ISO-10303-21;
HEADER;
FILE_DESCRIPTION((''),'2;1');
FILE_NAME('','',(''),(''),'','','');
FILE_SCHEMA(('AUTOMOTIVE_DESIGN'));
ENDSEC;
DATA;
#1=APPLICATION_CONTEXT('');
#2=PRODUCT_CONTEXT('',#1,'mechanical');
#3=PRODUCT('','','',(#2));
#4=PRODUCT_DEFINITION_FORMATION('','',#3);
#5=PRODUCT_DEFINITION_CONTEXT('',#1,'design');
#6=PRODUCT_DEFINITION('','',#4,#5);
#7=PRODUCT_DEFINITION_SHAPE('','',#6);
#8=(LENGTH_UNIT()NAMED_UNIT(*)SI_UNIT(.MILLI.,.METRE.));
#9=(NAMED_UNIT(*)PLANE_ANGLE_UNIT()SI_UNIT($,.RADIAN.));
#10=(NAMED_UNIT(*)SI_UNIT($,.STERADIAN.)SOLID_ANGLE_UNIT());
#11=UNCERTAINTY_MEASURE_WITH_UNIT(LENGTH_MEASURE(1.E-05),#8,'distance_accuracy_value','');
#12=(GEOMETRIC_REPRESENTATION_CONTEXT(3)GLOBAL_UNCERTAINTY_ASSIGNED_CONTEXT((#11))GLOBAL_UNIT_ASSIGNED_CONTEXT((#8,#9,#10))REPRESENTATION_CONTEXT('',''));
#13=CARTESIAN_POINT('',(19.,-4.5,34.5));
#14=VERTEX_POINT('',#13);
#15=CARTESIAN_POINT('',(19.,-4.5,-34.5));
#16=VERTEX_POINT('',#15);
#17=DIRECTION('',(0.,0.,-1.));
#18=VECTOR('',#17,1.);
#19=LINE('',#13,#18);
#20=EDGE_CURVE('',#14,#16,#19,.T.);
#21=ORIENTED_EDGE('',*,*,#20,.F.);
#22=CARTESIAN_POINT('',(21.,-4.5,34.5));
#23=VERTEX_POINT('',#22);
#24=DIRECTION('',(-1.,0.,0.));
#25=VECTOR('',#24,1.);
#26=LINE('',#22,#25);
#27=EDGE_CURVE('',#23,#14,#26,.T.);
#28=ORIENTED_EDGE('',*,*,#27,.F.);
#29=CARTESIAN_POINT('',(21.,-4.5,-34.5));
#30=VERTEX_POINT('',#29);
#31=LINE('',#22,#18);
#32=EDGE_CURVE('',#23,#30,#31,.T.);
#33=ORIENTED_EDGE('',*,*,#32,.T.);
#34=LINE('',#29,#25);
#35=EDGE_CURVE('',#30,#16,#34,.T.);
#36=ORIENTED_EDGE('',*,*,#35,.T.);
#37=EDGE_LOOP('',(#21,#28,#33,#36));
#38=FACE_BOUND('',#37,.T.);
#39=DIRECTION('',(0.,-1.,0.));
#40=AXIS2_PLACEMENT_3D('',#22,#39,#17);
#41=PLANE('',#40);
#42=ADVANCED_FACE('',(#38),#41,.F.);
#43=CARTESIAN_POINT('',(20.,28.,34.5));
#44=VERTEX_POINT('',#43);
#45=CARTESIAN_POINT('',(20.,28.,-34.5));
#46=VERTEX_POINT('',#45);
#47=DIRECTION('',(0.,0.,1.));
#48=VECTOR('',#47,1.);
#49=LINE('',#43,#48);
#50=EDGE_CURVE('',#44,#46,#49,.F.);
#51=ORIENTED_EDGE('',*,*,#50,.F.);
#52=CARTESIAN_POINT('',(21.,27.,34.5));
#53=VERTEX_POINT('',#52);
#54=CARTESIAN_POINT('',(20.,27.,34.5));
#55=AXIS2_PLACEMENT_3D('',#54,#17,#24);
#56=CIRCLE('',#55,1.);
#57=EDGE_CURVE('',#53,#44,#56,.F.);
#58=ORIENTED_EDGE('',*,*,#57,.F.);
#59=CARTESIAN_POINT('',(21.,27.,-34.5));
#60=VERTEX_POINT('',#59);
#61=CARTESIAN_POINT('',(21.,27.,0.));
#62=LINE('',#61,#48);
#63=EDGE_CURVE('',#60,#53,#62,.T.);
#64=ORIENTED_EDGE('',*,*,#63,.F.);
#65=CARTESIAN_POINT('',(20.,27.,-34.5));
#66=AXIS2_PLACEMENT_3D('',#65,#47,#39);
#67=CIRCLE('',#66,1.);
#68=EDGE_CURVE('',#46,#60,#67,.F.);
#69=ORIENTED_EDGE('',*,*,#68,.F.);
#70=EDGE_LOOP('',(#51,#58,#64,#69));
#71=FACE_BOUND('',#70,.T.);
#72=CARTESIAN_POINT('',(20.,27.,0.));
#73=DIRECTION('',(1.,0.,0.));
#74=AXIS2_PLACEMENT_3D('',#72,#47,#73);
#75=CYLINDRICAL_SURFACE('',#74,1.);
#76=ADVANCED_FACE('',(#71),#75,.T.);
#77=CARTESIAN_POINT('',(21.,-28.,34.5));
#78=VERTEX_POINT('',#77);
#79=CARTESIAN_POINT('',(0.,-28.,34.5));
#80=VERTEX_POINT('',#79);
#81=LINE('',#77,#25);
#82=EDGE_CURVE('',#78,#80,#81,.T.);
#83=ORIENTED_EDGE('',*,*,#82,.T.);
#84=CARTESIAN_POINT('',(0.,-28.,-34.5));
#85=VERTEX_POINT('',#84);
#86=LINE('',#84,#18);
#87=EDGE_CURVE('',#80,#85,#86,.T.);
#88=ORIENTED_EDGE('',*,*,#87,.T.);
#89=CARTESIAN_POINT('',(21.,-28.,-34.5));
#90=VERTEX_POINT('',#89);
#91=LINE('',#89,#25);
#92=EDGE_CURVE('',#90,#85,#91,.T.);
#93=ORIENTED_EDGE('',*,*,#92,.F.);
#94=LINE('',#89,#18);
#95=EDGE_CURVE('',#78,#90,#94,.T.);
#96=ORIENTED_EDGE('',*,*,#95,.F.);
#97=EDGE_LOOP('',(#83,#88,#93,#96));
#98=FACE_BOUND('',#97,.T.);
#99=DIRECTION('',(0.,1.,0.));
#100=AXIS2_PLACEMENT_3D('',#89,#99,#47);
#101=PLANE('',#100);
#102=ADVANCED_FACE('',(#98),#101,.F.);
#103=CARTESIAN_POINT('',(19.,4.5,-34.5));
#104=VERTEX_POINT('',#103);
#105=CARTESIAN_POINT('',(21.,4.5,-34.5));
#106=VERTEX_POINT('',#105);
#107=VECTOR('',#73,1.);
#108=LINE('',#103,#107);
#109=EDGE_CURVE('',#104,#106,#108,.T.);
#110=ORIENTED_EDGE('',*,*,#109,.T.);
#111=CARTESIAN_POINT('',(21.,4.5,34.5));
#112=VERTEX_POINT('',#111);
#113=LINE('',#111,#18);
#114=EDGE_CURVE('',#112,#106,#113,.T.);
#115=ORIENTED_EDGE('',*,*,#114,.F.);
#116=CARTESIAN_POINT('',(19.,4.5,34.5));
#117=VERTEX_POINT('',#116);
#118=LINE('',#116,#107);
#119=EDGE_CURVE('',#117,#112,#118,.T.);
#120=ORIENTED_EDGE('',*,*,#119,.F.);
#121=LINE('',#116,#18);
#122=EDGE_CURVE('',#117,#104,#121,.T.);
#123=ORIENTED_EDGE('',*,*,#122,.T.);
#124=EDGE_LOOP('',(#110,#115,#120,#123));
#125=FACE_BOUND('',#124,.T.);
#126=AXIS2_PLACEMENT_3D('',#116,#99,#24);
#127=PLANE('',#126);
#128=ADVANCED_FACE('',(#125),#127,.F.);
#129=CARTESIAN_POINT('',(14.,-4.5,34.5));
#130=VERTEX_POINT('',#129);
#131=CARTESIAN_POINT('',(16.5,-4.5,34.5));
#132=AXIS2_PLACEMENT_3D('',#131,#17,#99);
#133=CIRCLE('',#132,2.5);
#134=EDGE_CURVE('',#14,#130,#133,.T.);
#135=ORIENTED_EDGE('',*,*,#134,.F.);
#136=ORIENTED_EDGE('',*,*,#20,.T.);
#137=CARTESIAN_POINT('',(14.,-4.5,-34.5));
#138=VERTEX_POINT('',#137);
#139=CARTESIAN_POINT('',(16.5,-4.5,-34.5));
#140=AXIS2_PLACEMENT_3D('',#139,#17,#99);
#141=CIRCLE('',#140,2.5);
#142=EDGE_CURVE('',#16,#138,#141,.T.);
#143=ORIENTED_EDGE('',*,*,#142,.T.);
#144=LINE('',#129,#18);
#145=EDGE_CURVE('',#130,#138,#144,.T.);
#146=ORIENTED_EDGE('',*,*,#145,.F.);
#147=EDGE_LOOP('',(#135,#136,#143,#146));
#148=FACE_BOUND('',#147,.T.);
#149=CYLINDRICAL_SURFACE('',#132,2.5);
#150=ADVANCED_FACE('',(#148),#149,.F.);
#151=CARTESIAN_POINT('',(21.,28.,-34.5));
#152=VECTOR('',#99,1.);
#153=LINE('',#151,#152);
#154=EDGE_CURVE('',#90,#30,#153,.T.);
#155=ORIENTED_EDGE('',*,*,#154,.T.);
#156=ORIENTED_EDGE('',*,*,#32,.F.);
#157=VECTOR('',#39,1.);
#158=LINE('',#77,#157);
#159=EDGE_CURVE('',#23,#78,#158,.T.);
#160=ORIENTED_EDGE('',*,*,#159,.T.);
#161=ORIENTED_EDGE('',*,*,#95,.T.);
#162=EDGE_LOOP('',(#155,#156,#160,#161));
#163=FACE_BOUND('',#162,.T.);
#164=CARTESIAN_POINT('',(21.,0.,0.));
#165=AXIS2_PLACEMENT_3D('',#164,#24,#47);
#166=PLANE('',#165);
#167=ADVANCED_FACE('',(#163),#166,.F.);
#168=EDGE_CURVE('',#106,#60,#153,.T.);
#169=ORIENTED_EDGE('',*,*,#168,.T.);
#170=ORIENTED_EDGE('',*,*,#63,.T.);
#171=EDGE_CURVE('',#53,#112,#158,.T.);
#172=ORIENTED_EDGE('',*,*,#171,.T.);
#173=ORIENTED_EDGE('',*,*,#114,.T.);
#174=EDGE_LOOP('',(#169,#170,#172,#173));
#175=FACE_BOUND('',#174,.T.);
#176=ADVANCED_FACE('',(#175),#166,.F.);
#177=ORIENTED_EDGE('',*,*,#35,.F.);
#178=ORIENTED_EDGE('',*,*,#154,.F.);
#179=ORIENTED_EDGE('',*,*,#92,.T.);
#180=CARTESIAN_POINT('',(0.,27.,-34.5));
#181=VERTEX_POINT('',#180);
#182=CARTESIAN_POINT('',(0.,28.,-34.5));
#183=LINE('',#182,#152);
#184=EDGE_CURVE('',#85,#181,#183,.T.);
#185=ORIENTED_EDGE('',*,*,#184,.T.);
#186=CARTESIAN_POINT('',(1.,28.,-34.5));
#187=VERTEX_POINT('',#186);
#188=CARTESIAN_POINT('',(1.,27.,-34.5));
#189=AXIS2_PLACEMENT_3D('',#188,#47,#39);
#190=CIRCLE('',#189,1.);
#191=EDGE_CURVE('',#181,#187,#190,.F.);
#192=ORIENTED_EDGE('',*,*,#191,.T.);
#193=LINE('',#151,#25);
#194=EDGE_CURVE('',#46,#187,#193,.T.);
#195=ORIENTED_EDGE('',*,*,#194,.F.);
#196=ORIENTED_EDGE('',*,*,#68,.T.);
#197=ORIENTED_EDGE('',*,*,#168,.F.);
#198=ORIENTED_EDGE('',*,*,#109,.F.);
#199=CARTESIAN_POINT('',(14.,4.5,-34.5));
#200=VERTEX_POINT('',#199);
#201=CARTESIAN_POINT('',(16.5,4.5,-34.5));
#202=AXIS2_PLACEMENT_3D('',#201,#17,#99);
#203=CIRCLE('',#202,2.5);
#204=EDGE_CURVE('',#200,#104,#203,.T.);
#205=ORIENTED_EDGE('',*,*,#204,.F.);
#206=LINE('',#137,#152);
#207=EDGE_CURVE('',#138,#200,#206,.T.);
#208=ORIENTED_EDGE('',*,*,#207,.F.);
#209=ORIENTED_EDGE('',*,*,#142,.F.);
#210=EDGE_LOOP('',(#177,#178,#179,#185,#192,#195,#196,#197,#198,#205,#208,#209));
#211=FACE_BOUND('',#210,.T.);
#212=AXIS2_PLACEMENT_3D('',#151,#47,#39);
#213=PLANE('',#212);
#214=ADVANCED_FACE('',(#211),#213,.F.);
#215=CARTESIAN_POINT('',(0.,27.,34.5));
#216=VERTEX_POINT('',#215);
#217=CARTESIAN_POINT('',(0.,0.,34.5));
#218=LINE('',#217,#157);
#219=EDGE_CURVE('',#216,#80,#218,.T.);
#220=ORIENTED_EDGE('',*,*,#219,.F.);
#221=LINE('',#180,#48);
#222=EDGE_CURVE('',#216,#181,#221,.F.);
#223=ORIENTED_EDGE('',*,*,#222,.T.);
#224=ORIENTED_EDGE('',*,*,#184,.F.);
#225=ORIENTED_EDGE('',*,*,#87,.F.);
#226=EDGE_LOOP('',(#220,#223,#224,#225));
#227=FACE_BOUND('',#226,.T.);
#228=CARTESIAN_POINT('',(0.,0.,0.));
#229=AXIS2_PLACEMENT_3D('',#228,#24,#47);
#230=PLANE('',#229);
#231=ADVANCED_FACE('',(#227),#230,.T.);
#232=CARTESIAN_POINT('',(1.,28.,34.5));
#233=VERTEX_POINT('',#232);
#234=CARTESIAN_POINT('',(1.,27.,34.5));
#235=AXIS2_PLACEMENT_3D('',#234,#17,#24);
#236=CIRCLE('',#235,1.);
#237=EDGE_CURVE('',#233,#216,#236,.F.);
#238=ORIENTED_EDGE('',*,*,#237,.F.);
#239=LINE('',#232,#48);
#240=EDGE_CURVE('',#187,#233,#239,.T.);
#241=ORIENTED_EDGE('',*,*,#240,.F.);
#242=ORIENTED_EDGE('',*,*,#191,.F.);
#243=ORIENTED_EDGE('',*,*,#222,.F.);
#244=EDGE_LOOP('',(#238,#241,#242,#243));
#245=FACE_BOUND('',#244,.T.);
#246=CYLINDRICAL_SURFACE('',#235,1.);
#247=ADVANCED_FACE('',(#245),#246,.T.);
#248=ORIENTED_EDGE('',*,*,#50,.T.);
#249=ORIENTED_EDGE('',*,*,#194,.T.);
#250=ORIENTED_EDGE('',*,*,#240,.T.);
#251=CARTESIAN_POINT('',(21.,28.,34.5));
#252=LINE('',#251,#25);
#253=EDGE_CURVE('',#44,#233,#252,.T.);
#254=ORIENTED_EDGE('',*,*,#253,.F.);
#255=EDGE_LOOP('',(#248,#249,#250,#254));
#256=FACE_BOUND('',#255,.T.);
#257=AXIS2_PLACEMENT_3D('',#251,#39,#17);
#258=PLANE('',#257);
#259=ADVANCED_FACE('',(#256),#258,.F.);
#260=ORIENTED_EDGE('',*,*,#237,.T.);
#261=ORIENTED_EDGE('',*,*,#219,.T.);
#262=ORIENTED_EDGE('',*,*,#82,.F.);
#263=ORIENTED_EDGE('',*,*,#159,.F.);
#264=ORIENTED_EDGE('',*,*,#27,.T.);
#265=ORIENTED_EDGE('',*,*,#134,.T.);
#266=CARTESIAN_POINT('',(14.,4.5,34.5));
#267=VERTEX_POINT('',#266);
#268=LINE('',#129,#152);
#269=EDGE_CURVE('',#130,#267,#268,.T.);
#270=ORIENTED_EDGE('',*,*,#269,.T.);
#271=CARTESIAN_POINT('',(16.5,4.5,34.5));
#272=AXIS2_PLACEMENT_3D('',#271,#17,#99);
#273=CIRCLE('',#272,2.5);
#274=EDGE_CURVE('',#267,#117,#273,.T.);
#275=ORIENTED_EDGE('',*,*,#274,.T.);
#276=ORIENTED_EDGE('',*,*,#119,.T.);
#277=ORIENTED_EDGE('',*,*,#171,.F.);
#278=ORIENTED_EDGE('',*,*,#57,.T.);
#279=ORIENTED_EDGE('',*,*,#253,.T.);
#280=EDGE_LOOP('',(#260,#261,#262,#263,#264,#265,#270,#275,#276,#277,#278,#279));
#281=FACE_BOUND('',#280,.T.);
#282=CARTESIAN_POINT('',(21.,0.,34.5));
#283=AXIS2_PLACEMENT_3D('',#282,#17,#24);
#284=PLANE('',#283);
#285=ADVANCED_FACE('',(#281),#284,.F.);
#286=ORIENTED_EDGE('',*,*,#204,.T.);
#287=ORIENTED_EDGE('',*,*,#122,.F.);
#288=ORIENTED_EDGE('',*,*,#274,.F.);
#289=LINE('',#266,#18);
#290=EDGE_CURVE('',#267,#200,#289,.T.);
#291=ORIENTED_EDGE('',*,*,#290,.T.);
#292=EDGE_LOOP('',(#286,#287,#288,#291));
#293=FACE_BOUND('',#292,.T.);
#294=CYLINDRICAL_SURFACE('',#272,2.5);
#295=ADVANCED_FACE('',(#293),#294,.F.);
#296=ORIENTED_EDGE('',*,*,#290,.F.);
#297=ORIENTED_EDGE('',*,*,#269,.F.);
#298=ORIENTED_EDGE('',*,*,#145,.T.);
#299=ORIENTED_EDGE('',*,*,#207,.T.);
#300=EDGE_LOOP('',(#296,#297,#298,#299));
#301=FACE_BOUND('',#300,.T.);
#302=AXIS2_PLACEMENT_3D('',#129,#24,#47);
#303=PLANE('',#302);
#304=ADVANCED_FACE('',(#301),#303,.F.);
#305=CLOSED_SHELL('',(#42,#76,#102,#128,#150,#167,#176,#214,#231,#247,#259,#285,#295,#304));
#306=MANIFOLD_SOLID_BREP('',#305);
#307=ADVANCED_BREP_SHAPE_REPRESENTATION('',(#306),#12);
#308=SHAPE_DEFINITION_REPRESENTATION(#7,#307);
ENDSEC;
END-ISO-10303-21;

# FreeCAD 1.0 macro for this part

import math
import FreeCAD as App
import Part
import Sketcher
from FreeCAD import Vector


def edges_at(feature, points):
    """Names of the edges that pass closest to the given points."""
    edges = feature.Shape.Edges
    near = lambda p: min(range(len(edges)), key=lambda i: edges[i].distToShape(Part.Vertex(*p))[0])
    return sorted({f"Edge{near(p) + 1}" for p in points})

doc = App.newDocument("Part")
body = doc.addObject("PartDesign::Body", "Body")

# Sketch on YZ plane
sketch1 = body.newObject("Sketcher::SketchObject", "Sketch")
sketch1.AttachmentSupport = (doc.getObject("YZ_Plane"), [""])
sketch1.MapMode = "FlatFace"
sketch1.addGeometry([
    Part.LineSegment(Vector(28, 34.5, 0), Vector(-28, 34.5, 0)),
    Part.LineSegment(Vector(-28, 34.5, 0), Vector(-28, -34.5, 0)),
    Part.LineSegment(Vector(-28, -34.5, 0), Vector(28, -34.5, 0)),
    Part.LineSegment(Vector(28, -34.5, 0), Vector(28, 34.5, 0)),
], False)
sketch1.addConstraint([
    Sketcher.Constraint("Coincident", 0, 2, 1, 1),
    Sketcher.Constraint("Coincident", 1, 2, 2, 1),
    Sketcher.Constraint("Coincident", 2, 2, 3, 1),
    Sketcher.Constraint("Coincident", 3, 2, 0, 1),
    Sketcher.Constraint("Horizontal", 0),
    Sketcher.Constraint("Vertical", 1),
    Sketcher.Constraint("Horizontal", 2),
    Sketcher.Constraint("Vertical", 3),
    Sketcher.Constraint("Symmetric", 0, 2, 2, 2, -1, 1),
    Sketcher.Constraint("DistanceX", 0, 2, 0, 1, 56.0),
    Sketcher.Constraint("DistanceY", 1, 2, 1, 1, 69.0),
])
pad1 = body.newObject("PartDesign::Pad", "Pad")
pad1.Profile = sketch1
pad1.Length = 21
doc.recompute()

fillet = body.newObject("PartDesign::Fillet", "Fillet")
fillet.Base = (pad1, edges_at(pad1, [(21, 28, 0), (0, 28, 0)]))
fillet.Radius = 1

# Sketch on XY plane
sketch2 = body.newObject("Sketcher::SketchObject", "Sketch001")
sketch2.AttachmentSupport = (doc.getObject("XY_Plane"), [""])
sketch2.MapMode = "FlatFace"
sketch2.AttachmentOffset = App.Placement(Vector(0, 0, -34.5), App.Rotation())
sketch2.addGeometry([
    Part.LineSegment(Vector(21, -4.5, 0), Vector(19, -4.5, 0)),  # 0
    Part.ArcOfCircle(Part.Circle(Vector(16.5, -4.5, 0), Vector(0, 0, 1), 2.5), math.radians(180), math.radians(360)),  # 1
    Part.LineSegment(Vector(14, -4.5, 0), Vector(14, 4.5, 0)),  # 2
    Part.ArcOfCircle(Part.Circle(Vector(16.5, 4.5, 0), Vector(0, 0, 1), 2.5), math.radians(0), math.radians(180)),  # 3
    Part.LineSegment(Vector(19, 4.5, 0), Vector(21, 4.5, 0)),  # 4
    Part.LineSegment(Vector(21, 4.5, 0), Vector(21, -4.5, 0)),  # 5
], False)
sketch2.addConstraint([
    Sketcher.Constraint("Coincident", 0, 2, 1, 2),
    Sketcher.Constraint("Tangent", 1, 1, 2, 1),
    Sketcher.Constraint("Tangent", 2, 2, 3, 2),
    Sketcher.Constraint("Coincident", 3, 1, 4, 1),
    Sketcher.Constraint("Coincident", 4, 2, 5, 1),
    Sketcher.Constraint("Coincident", 5, 2, 0, 1),
    Sketcher.Constraint("Horizontal", 0),
    Sketcher.Constraint("Vertical", 2),
    Sketcher.Constraint("Horizontal", 4),
    Sketcher.Constraint("Vertical", 5),
    Sketcher.Constraint("Equal", 1, 3),
    Sketcher.Constraint("Horizontal", 1, 3, 0, 2),
    Sketcher.Constraint("Horizontal", 2, 2, 3, 1),
    Sketcher.Constraint("Radius", 1, 2.5),
    Sketcher.Constraint("DistanceX", 0, 2, 0, 1, 2.0),
    Sketcher.Constraint("DistanceY", 2, 1, 2, 2, 9.0),
    Sketcher.Constraint("DistanceX", -1, 1, 0, 2, 19.0),
    Sketcher.Constraint("DistanceY", 1, 3, -1, 1, 4.5),
])
pocket1 = body.newObject("PartDesign::Pocket", "Pocket")
pocket1.Profile = sketch2
pocket1.Type = "ThroughAll"
pocket1.Reversed = True

doc.recompute()
